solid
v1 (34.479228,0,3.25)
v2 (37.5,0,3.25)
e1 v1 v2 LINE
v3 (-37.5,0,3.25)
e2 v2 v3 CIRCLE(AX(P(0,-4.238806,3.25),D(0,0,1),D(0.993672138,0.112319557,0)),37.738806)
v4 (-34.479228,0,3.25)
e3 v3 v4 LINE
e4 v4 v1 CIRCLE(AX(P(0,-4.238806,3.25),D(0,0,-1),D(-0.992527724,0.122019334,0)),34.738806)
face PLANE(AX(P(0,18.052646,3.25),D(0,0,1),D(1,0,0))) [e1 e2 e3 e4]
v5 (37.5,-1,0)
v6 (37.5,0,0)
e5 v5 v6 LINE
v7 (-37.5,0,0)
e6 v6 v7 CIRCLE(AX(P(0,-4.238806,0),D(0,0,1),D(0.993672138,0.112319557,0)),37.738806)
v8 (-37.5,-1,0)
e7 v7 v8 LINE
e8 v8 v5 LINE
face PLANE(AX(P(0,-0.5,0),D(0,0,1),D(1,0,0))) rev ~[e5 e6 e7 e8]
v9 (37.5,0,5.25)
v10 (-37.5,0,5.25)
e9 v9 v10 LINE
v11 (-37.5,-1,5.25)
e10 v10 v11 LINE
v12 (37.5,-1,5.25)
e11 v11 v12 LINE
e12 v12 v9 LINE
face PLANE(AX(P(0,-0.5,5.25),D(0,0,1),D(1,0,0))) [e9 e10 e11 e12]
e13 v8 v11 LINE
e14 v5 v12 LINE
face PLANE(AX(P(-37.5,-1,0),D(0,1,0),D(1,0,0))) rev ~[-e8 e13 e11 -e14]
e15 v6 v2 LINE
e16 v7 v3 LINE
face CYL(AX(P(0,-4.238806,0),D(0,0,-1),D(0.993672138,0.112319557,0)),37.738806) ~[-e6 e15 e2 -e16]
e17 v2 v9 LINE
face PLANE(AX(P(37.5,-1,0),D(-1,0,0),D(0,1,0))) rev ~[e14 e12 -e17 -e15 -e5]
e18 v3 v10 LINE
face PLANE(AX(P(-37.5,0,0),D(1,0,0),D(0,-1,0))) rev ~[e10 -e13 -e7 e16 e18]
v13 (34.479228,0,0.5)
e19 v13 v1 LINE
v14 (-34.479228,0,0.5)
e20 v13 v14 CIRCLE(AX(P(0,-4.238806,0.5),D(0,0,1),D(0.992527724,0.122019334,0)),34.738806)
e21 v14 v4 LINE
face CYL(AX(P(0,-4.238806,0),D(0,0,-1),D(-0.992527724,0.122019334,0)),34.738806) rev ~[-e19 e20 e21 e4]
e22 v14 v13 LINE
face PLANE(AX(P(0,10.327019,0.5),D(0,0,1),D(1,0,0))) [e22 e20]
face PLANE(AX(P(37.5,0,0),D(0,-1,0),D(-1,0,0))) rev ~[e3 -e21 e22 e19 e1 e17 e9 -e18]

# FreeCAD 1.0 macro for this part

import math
import FreeCAD as App
import Part
import Sketcher
Q = App.Units.Quantity

doc = App.newDocument("Part")
body = doc.addObject("PartDesign::Body", "Body")

sketch1 = body.newObject("Sketcher::SketchObject", "Sketch")
sketch1.AttachmentSupport = (doc.getObject("XY_Plane"), [""])
sketch1.MapMode = "FlatFace"
sketch1.addGeometry(Part.ArcOfCircle(Part.Circle(App.Vector(0, -4.238806, 0), App.Vector(0, 0, 1), 34.738806), math.radians(7.008658), math.radians(172.991342)), False)
sketch1.addGeometry(Part.LineSegment(App.Vector(34.479228, 0, 0), App.Vector(37.5, 0, 0)), False)
sketch1.addGeometry(Part.ArcOfCircle(Part.Circle(App.Vector(0, -4.238806, 0), App.Vector(0, 0, 1), 37.738806), math.radians(6.449045), math.radians(173.550955)), False)
sketch1.addGeometry(Part.LineSegment(App.Vector(-37.5, 0, 0), App.Vector(-34.479228, 0, 0)), False)
sketch1.addConstraint(Sketcher.Constraint("Coincident", 0, 1, 1, 1))
sketch1.addConstraint(Sketcher.Constraint("Coincident", 1, 2, 2, 1))
sketch1.addConstraint(Sketcher.Constraint("Coincident", 2, 2, 3, 1))
sketch1.addConstraint(Sketcher.Constraint("Coincident", 3, 2, 0, 2))
sketch1.addConstraint(Sketcher.Constraint("Horizontal", 1))
sketch1.addConstraint(Sketcher.Constraint("Horizontal", 3))
sketch1.addConstraint(Sketcher.Constraint("Coincident", 2, 3, 0, 3))
sketch1.addConstraint(Sketcher.Constraint("Symmetric", 1, 2, 2, 2, -1, 1))
sketch1.addConstraint(Sketcher.Constraint("PointOnObject", 0, 3, -2))
sketch1.addConstraint(Sketcher.Constraint("DistanceX", 2, 2, 1, 2, Q("75 mm")))
sketch1.addConstraint(Sketcher.Constraint("Radius", 0, Q("34.738806 mm")))
sketch1.addConstraint(Sketcher.Constraint("Radius", 2, Q("37.738806 mm")))
pad1 = body.newObject("PartDesign::Pad", "Pad")
pad1.Profile = sketch1
pad1.Length = 3.25

sketch2 = body.newObject("Sketcher::SketchObject", "Sketch001")
sketch2.AttachmentSupport = (doc.getObject("XY_Plane"), [""])
sketch2.MapMode = "FlatFace"
sketch2.addGeometry(Part.LineSegment(App.Vector(-34.479228, 0, 0), App.Vector(34.479228, 0, 0)), False)
sketch2.addGeometry(Part.ArcOfCircle(Part.Circle(App.Vector(0, -4.238806, 0), App.Vector(0, 0, 1), 34.738806), math.radians(7.008658), math.radians(172.991342)), False)
sketch2.addConstraint(Sketcher.Constraint("Coincident", 0, 1, 1, 2))
sketch2.addConstraint(Sketcher.Constraint("Coincident", 1, 1, 0, 2))
sketch2.addConstraint(Sketcher.Constraint("Horizontal", 0))
sketch2.addConstraint(Sketcher.Constraint("Symmetric", 0, 1, 1, 1, -1, 1))
sketch2.addConstraint(Sketcher.Constraint("Radius", 1, Q("34.738806 mm")))
sketch2.addConstraint(Sketcher.Constraint("DistanceX", 0, 1, 0, 2, Q("68.958456 mm")))
pad2 = body.newObject("PartDesign::Pad", "Pad001")
pad2.Profile = sketch2
pad2.Length = 0.5

sketch3 = body.newObject("Sketcher::SketchObject", "Sketch002")
sketch3.AttachmentSupport = (doc.getObject("XY_Plane"), [""])
sketch3.MapMode = "FlatFace"
sketch3.addGeometry(Part.LineSegment(App.Vector(-37.5, 0, 0), App.Vector(-37.5, -1, 0)), False)
sketch3.addGeometry(Part.LineSegment(App.Vector(-37.5, -1, 0), App.Vector(37.5, -1, 0)), False)
sketch3.addGeometry(Part.LineSegment(App.Vector(37.5, -1, 0), App.Vector(37.5, 0, 0)), False)
sketch3.addGeometry(Part.LineSegment(App.Vector(37.5, 0, 0), App.Vector(-37.5, 0, 0)), False)
sketch3.addConstraint(Sketcher.Constraint("Coincident", 0, 2, 1, 1))
sketch3.addConstraint(Sketcher.Constraint("Coincident", 1, 2, 2, 1))
sketch3.addConstraint(Sketcher.Constraint("Coincident", 2, 2, 3, 1))
sketch3.addConstraint(Sketcher.Constraint("Coincident", 3, 2, 0, 1))
sketch3.addConstraint(Sketcher.Constraint("Vertical", 0))
sketch3.addConstraint(Sketcher.Constraint("Horizontal", 1))
sketch3.addConstraint(Sketcher.Constraint("Vertical", 2))
sketch3.addConstraint(Sketcher.Constraint("Horizontal", 3))
sketch3.addConstraint(Sketcher.Constraint("Symmetric", 2, 2, 3, 2, -1, 1))
sketch3.addConstraint(Sketcher.Constraint("DistanceX", 1, 1, 1, 2, Q("75 mm")))
sketch3.addConstraint(Sketcher.Constraint("DistanceY", 0, 2, 0, 1, Q("1 mm")))
pad3 = body.newObject("PartDesign::Pad", "Pad002")
pad3.Profile = sketch3
pad3.Length = 5.25

doc.recompute()
